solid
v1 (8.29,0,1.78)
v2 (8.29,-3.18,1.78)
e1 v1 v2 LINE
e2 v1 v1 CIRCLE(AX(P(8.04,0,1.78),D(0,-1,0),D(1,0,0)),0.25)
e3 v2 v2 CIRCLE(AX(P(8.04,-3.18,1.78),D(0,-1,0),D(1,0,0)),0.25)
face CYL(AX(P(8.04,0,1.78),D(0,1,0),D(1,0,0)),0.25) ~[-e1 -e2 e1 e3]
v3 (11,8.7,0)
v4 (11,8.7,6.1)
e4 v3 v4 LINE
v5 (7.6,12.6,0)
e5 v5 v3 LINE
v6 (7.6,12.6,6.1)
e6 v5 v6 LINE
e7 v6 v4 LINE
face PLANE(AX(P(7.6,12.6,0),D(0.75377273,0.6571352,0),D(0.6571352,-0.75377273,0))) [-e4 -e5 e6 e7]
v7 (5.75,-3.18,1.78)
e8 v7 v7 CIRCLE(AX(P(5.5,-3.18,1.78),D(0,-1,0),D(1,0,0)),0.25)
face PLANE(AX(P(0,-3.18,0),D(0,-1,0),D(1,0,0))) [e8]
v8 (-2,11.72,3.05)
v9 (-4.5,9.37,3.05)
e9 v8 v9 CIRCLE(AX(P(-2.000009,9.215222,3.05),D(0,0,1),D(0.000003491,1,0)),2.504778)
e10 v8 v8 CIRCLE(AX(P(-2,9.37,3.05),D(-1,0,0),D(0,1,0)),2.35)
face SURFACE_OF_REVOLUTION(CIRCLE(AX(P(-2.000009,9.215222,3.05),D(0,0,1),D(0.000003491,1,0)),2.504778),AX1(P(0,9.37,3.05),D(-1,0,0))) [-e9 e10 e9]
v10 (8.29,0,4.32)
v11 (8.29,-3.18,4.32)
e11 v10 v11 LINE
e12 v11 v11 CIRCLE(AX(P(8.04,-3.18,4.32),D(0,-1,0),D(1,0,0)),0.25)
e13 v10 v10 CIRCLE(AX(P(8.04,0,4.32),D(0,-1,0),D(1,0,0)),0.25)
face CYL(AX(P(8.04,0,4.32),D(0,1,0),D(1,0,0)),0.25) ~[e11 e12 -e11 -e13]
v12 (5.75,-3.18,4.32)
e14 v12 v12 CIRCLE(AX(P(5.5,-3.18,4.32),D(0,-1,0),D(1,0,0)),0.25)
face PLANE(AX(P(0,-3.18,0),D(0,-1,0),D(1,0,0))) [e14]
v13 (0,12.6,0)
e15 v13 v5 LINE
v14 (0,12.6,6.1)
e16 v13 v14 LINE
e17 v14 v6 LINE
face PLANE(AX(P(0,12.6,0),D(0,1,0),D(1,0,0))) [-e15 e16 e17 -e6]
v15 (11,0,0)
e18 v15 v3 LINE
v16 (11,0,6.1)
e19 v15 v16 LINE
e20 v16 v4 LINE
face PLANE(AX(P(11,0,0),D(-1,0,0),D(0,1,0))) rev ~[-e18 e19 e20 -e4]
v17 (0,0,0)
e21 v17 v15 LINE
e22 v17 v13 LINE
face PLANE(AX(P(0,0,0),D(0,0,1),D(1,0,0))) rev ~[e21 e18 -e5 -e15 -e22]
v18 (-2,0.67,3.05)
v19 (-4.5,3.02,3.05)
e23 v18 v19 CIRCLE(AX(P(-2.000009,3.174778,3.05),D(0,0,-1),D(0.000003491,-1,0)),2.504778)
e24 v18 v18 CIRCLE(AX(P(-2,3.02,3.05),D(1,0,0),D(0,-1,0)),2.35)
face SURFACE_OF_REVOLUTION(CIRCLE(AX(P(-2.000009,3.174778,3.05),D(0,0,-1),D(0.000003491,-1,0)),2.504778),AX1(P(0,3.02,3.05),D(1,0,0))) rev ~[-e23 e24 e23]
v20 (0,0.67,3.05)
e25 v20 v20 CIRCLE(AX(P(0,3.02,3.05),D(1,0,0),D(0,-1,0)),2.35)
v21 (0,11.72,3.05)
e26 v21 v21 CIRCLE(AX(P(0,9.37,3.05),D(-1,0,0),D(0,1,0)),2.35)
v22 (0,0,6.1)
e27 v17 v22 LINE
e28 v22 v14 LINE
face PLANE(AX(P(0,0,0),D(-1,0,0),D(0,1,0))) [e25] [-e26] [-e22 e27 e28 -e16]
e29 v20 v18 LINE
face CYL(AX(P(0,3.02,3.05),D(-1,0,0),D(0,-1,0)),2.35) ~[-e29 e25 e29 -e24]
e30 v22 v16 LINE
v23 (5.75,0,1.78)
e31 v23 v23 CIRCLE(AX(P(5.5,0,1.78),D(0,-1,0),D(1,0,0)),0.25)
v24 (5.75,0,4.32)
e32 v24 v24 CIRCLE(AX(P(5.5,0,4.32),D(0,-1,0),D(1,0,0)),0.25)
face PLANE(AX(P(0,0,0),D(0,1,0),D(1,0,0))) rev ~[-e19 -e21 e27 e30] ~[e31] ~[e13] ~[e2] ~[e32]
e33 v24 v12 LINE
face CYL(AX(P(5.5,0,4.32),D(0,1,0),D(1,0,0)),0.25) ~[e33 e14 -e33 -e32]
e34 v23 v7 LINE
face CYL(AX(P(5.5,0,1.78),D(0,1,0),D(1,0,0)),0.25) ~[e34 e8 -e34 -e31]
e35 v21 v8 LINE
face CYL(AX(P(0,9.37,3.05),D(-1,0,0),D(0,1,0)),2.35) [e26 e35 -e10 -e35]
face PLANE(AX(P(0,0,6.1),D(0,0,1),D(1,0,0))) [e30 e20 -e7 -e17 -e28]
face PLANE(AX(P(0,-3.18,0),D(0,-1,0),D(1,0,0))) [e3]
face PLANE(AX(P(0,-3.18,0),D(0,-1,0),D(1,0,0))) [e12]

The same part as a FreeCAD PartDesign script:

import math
import FreeCAD as App
import Part
import Sketcher

V = App.Vector
Q = App.Units.Quantity

doc = App.newDocument("Part")
body = doc.addObject("PartDesign::Body", "Body")

# Sketch on XY plane
sketch1 = doc.addObject("Sketcher::SketchObject", "Sketch")
body.addObject(sketch1)
sketch1.AttachmentSupport = (doc.XY_Plane, [""])
sketch1.MapMode = "FlatFace"
sketch1.addGeometry([
    Part.LineSegment(V(0, 13, 0), V(0, 0, 0)),  # 0
    Part.LineSegment(V(0, 0, 0), V(11, 0, 0)),  # 1
    Part.LineSegment(V(11, 0, 0), V(11, 9, 0)),  # 2
    Part.LineSegment(V(11, 9, 0), V(8, 13, 0)),  # 3
    Part.LineSegment(V(8, 13, 0), V(0, 13, 0)),  # 4
], False)
sketch1.addConstraint([
    Sketcher.Constraint("Coincident", 0, 2, 1, 1),
    Sketcher.Constraint("Coincident", 1, 2, 2, 1),
    Sketcher.Constraint("Coincident", 2, 2, 3, 1),
    Sketcher.Constraint("Coincident", 3, 2, 4, 1),
    Sketcher.Constraint("Coincident", 4, 2, 0, 1),
    Sketcher.Constraint("Vertical", 0),
    Sketcher.Constraint("Horizontal", 1),
    Sketcher.Constraint("Vertical", 2),
    Sketcher.Constraint("Horizontal", 4),
    Sketcher.Constraint("Coincident", 0, 2, -1, 1),
    Sketcher.Constraint("DistanceX", 1, 1, 1, 2, Q("11 mm")),
    Sketcher.Constraint("DistanceX", 4, 2, 4, 1, Q("7.6 mm")),
    Sketcher.Constraint("DistanceY", 0, 2, 0, 1, Q("12.6 mm")),
    Sketcher.Constraint("DistanceY", 2, 1, 2, 2, Q("8.7 mm")),
])
pad1 = doc.addObject("PartDesign::Pad", "Pad")
body.addObject(pad1)
pad1.Profile = sketch1
pad1.Length = 6.1

# Sketch on XY plane
sketch2 = doc.addObject("Sketcher::SketchObject", "Sketch001")
body.addObject(sketch2)
sketch2.AttachmentSupport = (doc.XY_Plane, [""])
sketch2.MapMode = "FlatFace"
sketch2.AttachmentOffset = App.Placement(V(0, 0, 3.05), App.Rotation())
sketch2.addGeometry([
    Part.LineSegment(V(0, 9.4, 0), V(0, 11.7, 0)),
    Part.LineSegment(V(0, 11.7, 0), V(-2, 11.7, 0)),
    Part.ArcOfCircle(Part.Circle(V(-2, 9.2, 0), V(0, 0, 1), 2.5), math.radians(90), math.radians(176)),
    Part.LineSegment(V(-4.5, 9.4, 0), V(0, 9.4, 0)),
], False)
sketch2.addGeometry(Part.LineSegment(V(0, 9.4, 0), V(-4.5, 9.4, 0)), True)  # axis
sketch2.addConstraint([
    Sketcher.Constraint("Coincident", 0, 2, 1, 1),
    Sketcher.Constraint("Tangent", 1, 2, 2, 1),
    Sketcher.Constraint("Coincident", 2, 2, 3, 1),
    Sketcher.Constraint("Coincident", 3, 2, 0, 1),
    Sketcher.Constraint("Vertical", 0),
    Sketcher.Constraint("Horizontal", 1),
    Sketcher.Constraint("Horizontal", 3),
    Sketcher.Constraint("Horizontal", 4),
    Sketcher.Constraint("Coincident", 4, 1, 3, 2),
    Sketcher.Constraint("PointOnObject", 0, 2, -2),
    Sketcher.Constraint("Equal", 3, 4),
    Sketcher.Constraint("DistanceX", 1, 2, 1, 1, Q("2 mm")),
    Sketcher.Constraint("DistanceX", 3, 1, 3, 2, Q("4.5 mm")),
    Sketcher.Constraint("DistanceY", 0, 1, 0, 2, Q("2.35 mm")),
    Sketcher.Constraint("DistanceY", -1, 1, 0, 2, Q("11.72 mm")),
])
revolution = doc.addObject("PartDesign::Revolution", "Revolution")
body.addObject(revolution)
revolution.Profile = sketch2
revolution.ReferenceAxis = (sketch2, ["Axis0"])
revolution.Angle = 360
doc.recompute()

datumplane = doc.addObject("PartDesign::Plane", "DatumPlane")
body.addObject(datumplane)
datumplane.AttachmentSupport = (doc.XZ_Plane, [""])
datumplane.MapMode = "FlatFace"
datumplane.AttachmentOffset = App.Placement(V(0, 0, -6.195), App.Rotation())
mirrored = doc.addObject("PartDesign::Mirrored", "Mirrored")
body.addObject(mirrored)
mirrored.Originals = [revolution]
mirrored.MirrorPlane = (datumplane, [""])
body.Tip = mirrored

# Sketch on XZ plane
sketch3 = doc.addObject("Sketcher::SketchObject", "Sketch002")
body.addObject(sketch3)
sketch3.AttachmentSupport = (doc.XZ_Plane, [""])
sketch3.MapMode = "FlatFace"
sketch3.addGeometry([
    Part.Circle(V(5.5, 1.78, 0), V(0, 0, 1), 0.25),
    Part.Circle(V(8.04, 1.78, 0), V(0, 0, 1), 0.25),
    Part.Circle(V(5.5, 4.32, 0), V(0, 0, 1), 0.25),
    Part.Circle(V(8.04, 4.32, 0), V(0, 0, 1), 0.25),
], False)
sketch3.addConstraint([
    Sketcher.Constraint("Equal", 0, 1),
    Sketcher.Constraint("Equal", 1, 2),
    Sketcher.Constraint("Equal", 2, 3),
    Sketcher.Constraint("Horizontal", 0, 3, 1, 3),
    Sketcher.Constraint("Horizontal", 2, 3, 3, 3),
    Sketcher.Constraint("Vertical", 0, 3, 2, 3),
    Sketcher.Constraint("Vertical", 1, 3, 3, 3),
    Sketcher.Constraint("Diameter", 0, Q("0.5 mm")),
    Sketcher.Constraint("DistanceX", -1, 1, 0, 3, Q("5.5 mm")),
    Sketcher.Constraint("DistanceX", 0, 3, 1, 3, Q("2.54 mm")),
    Sketcher.Constraint("DistanceY", 0, 3, 2, 3, Q("2.54 mm")),
    Sketcher.Constraint("DistanceY", -1, 1, 0, 3, Q("1.78 mm")),
])
pad2 = doc.addObject("PartDesign::Pad", "Pad001")
body.addObject(pad2)
pad2.Profile = sketch3
pad2.Length = 3.18

doc.recompute()
